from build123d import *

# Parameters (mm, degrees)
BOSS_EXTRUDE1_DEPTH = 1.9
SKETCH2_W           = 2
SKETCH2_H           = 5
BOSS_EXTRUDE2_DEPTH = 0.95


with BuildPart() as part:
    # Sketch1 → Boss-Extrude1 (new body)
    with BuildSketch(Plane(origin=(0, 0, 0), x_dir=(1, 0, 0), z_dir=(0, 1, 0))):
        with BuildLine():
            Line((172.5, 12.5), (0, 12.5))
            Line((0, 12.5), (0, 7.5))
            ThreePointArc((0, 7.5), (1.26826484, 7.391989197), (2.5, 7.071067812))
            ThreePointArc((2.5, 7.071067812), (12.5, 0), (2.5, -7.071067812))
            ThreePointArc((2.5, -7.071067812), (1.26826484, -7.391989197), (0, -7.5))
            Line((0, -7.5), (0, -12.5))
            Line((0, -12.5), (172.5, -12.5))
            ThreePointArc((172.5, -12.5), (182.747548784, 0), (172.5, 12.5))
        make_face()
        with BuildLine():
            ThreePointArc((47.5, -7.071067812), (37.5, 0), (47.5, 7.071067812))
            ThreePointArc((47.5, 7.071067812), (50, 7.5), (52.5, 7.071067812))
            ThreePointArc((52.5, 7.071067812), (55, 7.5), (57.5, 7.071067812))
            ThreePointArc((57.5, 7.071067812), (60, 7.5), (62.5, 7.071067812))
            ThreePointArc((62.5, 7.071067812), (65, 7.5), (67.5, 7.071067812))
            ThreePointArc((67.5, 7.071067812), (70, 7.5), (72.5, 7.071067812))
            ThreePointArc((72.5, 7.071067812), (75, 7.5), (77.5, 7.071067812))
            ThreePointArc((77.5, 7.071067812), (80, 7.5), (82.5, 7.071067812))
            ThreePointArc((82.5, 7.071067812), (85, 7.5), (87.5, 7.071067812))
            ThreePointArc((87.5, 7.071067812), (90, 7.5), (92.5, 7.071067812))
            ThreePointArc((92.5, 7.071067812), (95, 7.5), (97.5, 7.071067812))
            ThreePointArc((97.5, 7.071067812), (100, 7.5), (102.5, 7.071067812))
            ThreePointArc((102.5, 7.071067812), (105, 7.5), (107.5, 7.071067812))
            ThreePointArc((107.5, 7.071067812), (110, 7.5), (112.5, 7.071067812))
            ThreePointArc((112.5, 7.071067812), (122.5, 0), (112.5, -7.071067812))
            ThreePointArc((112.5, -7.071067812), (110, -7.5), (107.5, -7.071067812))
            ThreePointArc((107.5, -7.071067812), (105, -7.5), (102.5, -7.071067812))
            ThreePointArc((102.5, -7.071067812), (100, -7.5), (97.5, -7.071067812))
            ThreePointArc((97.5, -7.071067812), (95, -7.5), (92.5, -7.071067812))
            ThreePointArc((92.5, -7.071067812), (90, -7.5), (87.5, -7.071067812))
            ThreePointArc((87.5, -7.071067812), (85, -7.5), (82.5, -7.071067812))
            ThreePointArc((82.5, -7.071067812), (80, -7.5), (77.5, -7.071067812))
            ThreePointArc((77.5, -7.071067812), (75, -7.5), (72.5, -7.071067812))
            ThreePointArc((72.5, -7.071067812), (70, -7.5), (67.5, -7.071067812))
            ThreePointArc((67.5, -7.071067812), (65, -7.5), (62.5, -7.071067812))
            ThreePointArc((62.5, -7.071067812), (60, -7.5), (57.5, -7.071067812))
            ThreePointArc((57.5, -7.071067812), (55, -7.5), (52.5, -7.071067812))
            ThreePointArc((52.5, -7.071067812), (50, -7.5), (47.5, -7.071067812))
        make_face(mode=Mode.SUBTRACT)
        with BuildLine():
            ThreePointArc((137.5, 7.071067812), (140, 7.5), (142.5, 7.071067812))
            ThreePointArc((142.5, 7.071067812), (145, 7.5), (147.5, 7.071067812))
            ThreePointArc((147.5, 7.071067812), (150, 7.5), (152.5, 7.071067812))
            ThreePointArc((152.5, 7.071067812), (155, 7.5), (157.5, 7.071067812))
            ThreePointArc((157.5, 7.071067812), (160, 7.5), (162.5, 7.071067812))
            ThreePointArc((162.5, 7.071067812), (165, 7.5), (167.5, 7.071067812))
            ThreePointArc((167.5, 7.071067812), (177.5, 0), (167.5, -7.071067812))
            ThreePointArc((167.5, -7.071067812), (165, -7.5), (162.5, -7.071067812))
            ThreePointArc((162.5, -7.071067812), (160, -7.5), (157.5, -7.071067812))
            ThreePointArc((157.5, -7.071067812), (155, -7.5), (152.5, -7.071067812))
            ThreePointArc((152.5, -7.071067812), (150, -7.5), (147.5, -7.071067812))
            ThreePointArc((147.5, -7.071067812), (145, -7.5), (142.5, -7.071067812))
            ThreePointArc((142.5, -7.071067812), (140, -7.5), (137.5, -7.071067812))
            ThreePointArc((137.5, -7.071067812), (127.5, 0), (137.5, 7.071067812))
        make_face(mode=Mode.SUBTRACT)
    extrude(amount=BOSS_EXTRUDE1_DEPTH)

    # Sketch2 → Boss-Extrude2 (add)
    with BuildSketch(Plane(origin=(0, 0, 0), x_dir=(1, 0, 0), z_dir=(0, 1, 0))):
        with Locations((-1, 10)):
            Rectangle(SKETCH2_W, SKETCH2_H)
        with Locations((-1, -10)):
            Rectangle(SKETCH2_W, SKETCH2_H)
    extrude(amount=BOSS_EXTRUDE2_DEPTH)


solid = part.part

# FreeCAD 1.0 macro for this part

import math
import FreeCAD as App
import Part
import Sketcher

V = App.Vector
Q = App.Units.Quantity


def add_polygon(sketch, points):
    """Adds a closed chain of lines whose ends are joined by coincident constraints."""
    first, n = sketch.GeometryCount, len(points)
    for a, b in zip(points, points[1:] + points[:1]):
        sketch.addGeometry(Part.LineSegment(App.Vector(*a, 0), App.Vector(*b, 0)), False)
    for i in range(n):
        sketch.addConstraint(Sketcher.Constraint("Coincident", first + i, 2, first + (i + 1) % n, 1))

doc = App.newDocument("Part")
body = doc.addObject("PartDesign::Body", "Body")

# Sketch on XZ plane
sketch1 = doc.addObject("Sketcher::SketchObject", "Sketch")
body.addObject(sketch1)
sketch1.AttachmentSupport = (doc.XZ_Plane, [""])
sketch1.MapMode = "FlatFace"
sketch1.addGeometry(Part.LineSegment(V(172.5, -12.5, 0), V(0, -12.5, 0)), False)
sketch1.addGeometry(Part.LineSegment(V(0, -12.5, 0), V(0, -7.5, 0)), False)
sketch1.addGeometry(Part.ArcOfCircle(Part.Circle(V(0, 0, 0), V(0, 0, 1), 7.5), math.radians(-90), math.radians(-70.528779)), False)
sketch1.addGeometry(Part.ArcOfCircle(Part.Circle(V(5, 0, 0), V(0, 0, 1), 7.5), math.radians(-109.471221), math.radians(109.471221)), False)
sketch1.addGeometry(Part.ArcOfCircle(Part.Circle(V(0, 0, 0), V(0, 0, 1), 7.5), math.radians(70.528779), math.radians(90)), False)
sketch1.addGeometry(Part.LineSegment(V(0, 7.5, 0), V(0, 12.5, 0)), False)
sketch1.addGeometry(Part.LineSegment(V(0, 12.5, 0), V(172.5, 12.5, 0)), False)
sketch1.addGeometry(Part.ArcOfCircle(Part.Circle(V(170, 0, 0), V(0, 0, 1), 12.747549), math.radians(-78.690068), math.radians(78.690068)), False)
sketch1.addGeometry(Part.ArcOfCircle(Part.Circle(V(50, 0, 0), V(0, 0, 1), 7.5), math.radians(70.528779), math.radians(109.471221)), False)
sketch1.addGeometry(Part.ArcOfCircle(Part.Circle(V(45, 0, 0), V(0, 0, 1), 7.5), math.radians(70.528779), math.radians(289.471221)), False)
sketch1.addGeometry(Part.ArcOfCircle(Part.Circle(V(50, 0, 0), V(0, 0, 1), 7.5), math.radians(-109.471221), math.radians(-70.528779)), False)
sketch1.addGeometry(Part.ArcOfCircle(Part.Circle(V(55, 0, 0), V(0, 0, 1), 7.5), math.radians(-109.471221), math.radians(-70.528779)), False)
sketch1.addGeometry(Part.ArcOfCircle(Part.Circle(V(60, 0, 0), V(0, 0, 1), 7.5), math.radians(-109.471221), math.radians(-70.528779)), False)
sketch1.addGeometry(Part.ArcOfCircle(Part.Circle(V(65, 0, 0), V(0, 0, 1), 7.5), math.radians(-109.471221), math.radians(-70.528779)), False)
sketch1.addGeometry(Part.ArcOfCircle(Part.Circle(V(70, 0, 0), V(0, 0, 1), 7.5), math.radians(-109.471221), math.radians(-70.528779)), False)
sketch1.addGeometry(Part.ArcOfCircle(Part.Circle(V(75, 0, 0), V(0, 0, 1), 7.5), math.radians(-109.471221), math.radians(-70.528779)), False)
sketch1.addGeometry(Part.ArcOfCircle(Part.Circle(V(80, 0, 0), V(0, 0, 1), 7.5), math.radians(-109.471221), math.radians(-70.528779)), False)
sketch1.addGeometry(Part.ArcOfCircle(Part.Circle(V(85, 0, 0), V(0, 0, 1), 7.5), math.radians(-109.471221), math.radians(-70.528779)), False)
sketch1.addGeometry(Part.ArcOfCircle(Part.Circle(V(90, 0, 0), V(0, 0, 1), 7.5), math.radians(-109.471221), math.radians(-70.528779)), False)
sketch1.addGeometry(Part.ArcOfCircle(Part.Circle(V(95, 0, 0), V(0, 0, 1), 7.5), math.radians(-109.471221), math.radians(-70.528779)), False)
sketch1.addGeometry(Part.ArcOfCircle(Part.Circle(V(100, 0, 0), V(0, 0, 1), 7.5), math.radians(-109.471221), math.radians(-70.528779)), False)
sketch1.addGeometry(Part.ArcOfCircle(Part.Circle(V(105, 0, 0), V(0, 0, 1), 7.5), math.radians(-109.471221), math.radians(-70.528779)), False)
sketch1.addGeometry(Part.ArcOfCircle(Part.Circle(V(110, 0, 0), V(0, 0, 1), 7.5), math.radians(-109.471221), math.radians(-70.528779)), False)
sketch1.addGeometry(Part.ArcOfCircle(Part.Circle(V(115, 0, 0), V(0, 0, 1), 7.5), math.radians(-109.471221), math.radians(109.471221)), False)
sketch1.addGeometry(Part.ArcOfCircle(Part.Circle(V(110, 0, 0), V(0, 0, 1), 7.5), math.radians(70.528779), math.radians(109.471221)), False)
sketch1.addGeometry(Part.ArcOfCircle(Part.Circle(V(105, 0, 0), V(0, 0, 1), 7.5), math.radians(70.528779), math.radians(109.471221)), False)
sketch1.addGeometry(Part.ArcOfCircle(Part.Circle(V(100, 0, 0), V(0, 0, 1), 7.5), math.radians(70.528779), math.radians(109.471221)), False)
sketch1.addGeometry(Part.ArcOfCircle(Part.Circle(V(95, 0, 0), V(0, 0, 1), 7.5), math.radians(70.528779), math.radians(109.471221)), False)
sketch1.addGeometry(Part.ArcOfCircle(Part.Circle(V(90, 0, 0), V(0, 0, 1), 7.5), math.radians(70.528779), math.radians(109.471221)), False)
sketch1.addGeometry(Part.ArcOfCircle(Part.Circle(V(85, 0, 0), V(0, 0, 1), 7.5), math.radians(70.528779), math.radians(109.471221)), False)
sketch1.addGeometry(Part.ArcOfCircle(Part.Circle(V(80, 0, 0), V(0, 0, 1), 7.5), math.radians(70.528779), math.radians(109.471221)), False)
sketch1.addGeometry(Part.ArcOfCircle(Part.Circle(V(75, 0, 0), V(0, 0, 1), 7.5), math.radians(70.528779), math.radians(109.471221)), False)
sketch1.addGeometry(Part.ArcOfCircle(Part.Circle(V(70, 0, 0), V(0, 0, 1), 7.5), math.radians(70.528779), math.radians(109.471221)), False)
sketch1.addGeometry(Part.ArcOfCircle(Part.Circle(V(65, 0, 0), V(0, 0, 1), 7.5), math.radians(70.528779), math.radians(109.471221)), False)
sketch1.addGeometry(Part.ArcOfCircle(Part.Circle(V(60, 0, 0), V(0, 0, 1), 7.5), math.radians(70.528779), math.radians(109.471221)), False)
sketch1.addGeometry(Part.ArcOfCircle(Part.Circle(V(55, 0, 0), V(0, 0, 1), 7.5), math.radians(70.528779), math.radians(109.471221)), False)
sketch1.addGeometry(Part.ArcOfCircle(Part.Circle(V(135, 0, 0), V(0, 0, 1), 7.5), math.radians(70.528779), math.radians(289.471221)), False)
sketch1.addGeometry(Part.ArcOfCircle(Part.Circle(V(140, 0, 0), V(0, 0, 1), 7.5), math.radians(-109.471221), math.radians(-70.528779)), False)
sketch1.addGeometry(Part.ArcOfCircle(Part.Circle(V(145, 0, 0), V(0, 0, 1), 7.5), math.radians(-109.471221), math.radians(-70.528779)), False)
sketch1.addGeometry(Part.ArcOfCircle(Part.Circle(V(150, 0, 0), V(0, 0, 1), 7.5), math.radians(-109.471221), math.radians(-70.528779)), False)
sketch1.addGeometry(Part.ArcOfCircle(Part.Circle(V(155, 0, 0), V(0, 0, 1), 7.5), math.radians(-109.471221), math.radians(-70.528779)), False)
sketch1.addGeometry(Part.ArcOfCircle(Part.Circle(V(160, 0, 0), V(0, 0, 1), 7.5), math.radians(-109.471221), math.radians(-70.528779)), False)
sketch1.addGeometry(Part.ArcOfCircle(Part.Circle(V(165, 0, 0), V(0, 0, 1), 7.5), math.radians(-109.471221), math.radians(-70.528779)), False)
sketch1.addGeometry(Part.ArcOfCircle(Part.Circle(V(170, 0, 0), V(0, 0, 1), 7.5), math.radians(-109.471221), math.radians(109.471221)), False)
sketch1.addGeometry(Part.ArcOfCircle(Part.Circle(V(165, 0, 0), V(0, 0, 1), 7.5), math.radians(70.528779), math.radians(109.471221)), False)
sketch1.addGeometry(Part.ArcOfCircle(Part.Circle(V(160, 0, 0), V(0, 0, 1), 7.5), math.radians(70.528779), math.radians(109.471221)), False)
sketch1.addGeometry(Part.ArcOfCircle(Part.Circle(V(155, 0, 0), V(0, 0, 1), 7.5), math.radians(70.528779), math.radians(109.471221)), False)
sketch1.addGeometry(Part.ArcOfCircle(Part.Circle(V(150, 0, 0), V(0, 0, 1), 7.5), math.radians(70.528779), math.radians(109.471221)), False)
sketch1.addGeometry(Part.ArcOfCircle(Part.Circle(V(145, 0, 0), V(0, 0, 1), 7.5), math.radians(70.528779), math.radians(109.471221)), False)
sketch1.addGeometry(Part.ArcOfCircle(Part.Circle(V(140, 0, 0), V(0, 0, 1), 7.5), math.radians(70.528779), math.radians(109.471221)), False)
sketch1.addConstraint(Sketcher.Constraint("Coincident", 0, 2, 1, 1))
sketch1.addConstraint(Sketcher.Constraint("Coincident", 1, 2, 2, 1))
sketch1.addConstraint(Sketcher.Constraint("Coincident", 2, 2, 3, 1))
sketch1.addConstraint(Sketcher.Constraint("Coincident", 3, 2, 4, 1))
sketch1.addConstraint(Sketcher.Constraint("Coincident", 4, 2, 5, 1))
sketch1.addConstraint(Sketcher.Constraint("Coincident", 5, 2, 6, 1))
sketch1.addConstraint(Sketcher.Constraint("Coincident", 6, 2, 7, 2))
sketch1.addConstraint(Sketcher.Constraint("Coincident", 7, 1, 0, 1))
sketch1.addConstraint(Sketcher.Constraint("Coincident", 8, 2, 9, 1))
sketch1.addConstraint(Sketcher.Constraint("Coincident", 9, 2, 10, 1))
sketch1.addConstraint(Sketcher.Constraint("Coincident", 10, 2, 11, 1))
sketch1.addConstraint(Sketcher.Constraint("Coincident", 11, 2, 12, 1))
sketch1.addConstraint(Sketcher.Constraint("Coincident", 12, 2, 13, 1))
sketch1.addConstraint(Sketcher.Constraint("Coincident", 13, 2, 14, 1))
sketch1.addConstraint(Sketcher.Constraint("Coincident", 14, 2, 15, 1))
sketch1.addConstraint(Sketcher.Constraint("Coincident", 15, 2, 16, 1))
sketch1.addConstraint(Sketcher.Constraint("Coincident", 16, 2, 17, 1))
sketch1.addConstraint(Sketcher.Constraint("Coincident", 17, 2, 18, 1))
sketch1.addConstraint(Sketcher.Constraint("Coincident", 18, 2, 19, 1))
sketch1.addConstraint(Sketcher.Constraint("Coincident", 19, 2, 20, 1))
sketch1.addConstraint(Sketcher.Constraint("Coincident", 20, 2, 21, 1))
sketch1.addConstraint(Sketcher.Constraint("Coincident", 21, 2, 22, 1))
sketch1.addConstraint(Sketcher.Constraint("Coincident", 22, 2, 23, 1))
sketch1.addConstraint(Sketcher.Constraint("Coincident", 23, 2, 24, 1))
sketch1.addConstraint(Sketcher.Constraint("Coincident", 24, 2, 25, 1))
sketch1.addConstraint(Sketcher.Constraint("Coincident", 25, 2, 26, 1))
sketch1.addConstraint(Sketcher.Constraint("Coincident", 26, 2, 27, 1))
sketch1.addConstraint(Sketcher.Constraint("Coincident", 27, 2, 28, 1))
sketch1.addConstraint(Sketcher.Constraint("Coincident", 28, 2, 29, 1))
sketch1.addConstraint(Sketcher.Constraint("Coincident", 29, 2, 30, 1))
sketch1.addConstraint(Sketcher.Constraint("Coincident", 30, 2, 31, 1))
sketch1.addConstraint(Sketcher.Constraint("Coincident", 31, 2, 32, 1))
sketch1.addConstraint(Sketcher.Constraint("Coincident", 32, 2, 33, 1))
sketch1.addConstraint(Sketcher.Constraint("Coincident", 33, 2, 34, 1))
sketch1.addConstraint(Sketcher.Constraint("Coincident", 34, 2, 35, 1))
sketch1.addConstraint(Sketcher.Constraint("Coincident", 35, 2, 8, 1))
sketch1.addConstraint(Sketcher.Constraint("Coincident", 36, 2, 37, 1))
sketch1.addConstraint(Sketcher.Constraint("Coincident", 37, 2, 38, 1))
sketch1.addConstraint(Sketcher.Constraint("Coincident", 38, 2, 39, 1))
sketch1.addConstraint(Sketcher.Constraint("Coincident", 39, 2, 40, 1))
sketch1.addConstraint(Sketcher.Constraint("Coincident", 40, 2, 41, 1))
sketch1.addConstraint(Sketcher.Constraint("Coincident", 41, 2, 42, 1))
sketch1.addConstraint(Sketcher.Constraint("Coincident", 42, 2, 43, 1))
sketch1.addConstraint(Sketcher.Constraint("Coincident", 43, 2, 44, 1))
sketch1.addConstraint(Sketcher.Constraint("Coincident", 44, 2, 45, 1))
sketch1.addConstraint(Sketcher.Constraint("Coincident", 45, 2, 46, 1))
sketch1.addConstraint(Sketcher.Constraint("Coincident", 46, 2, 47, 1))
sketch1.addConstraint(Sketcher.Constraint("Coincident", 47, 2, 48, 1))
sketch1.addConstraint(Sketcher.Constraint("Coincident", 48, 2, 49, 1))
sketch1.addConstraint(Sketcher.Constraint("Coincident", 49, 2, 36, 1))
sketch1.addConstraint(Sketcher.Constraint("Horizontal", 0))
sketch1.addConstraint(Sketcher.Constraint("Vertical", 1))
sketch1.addConstraint(Sketcher.Constraint("Vertical", 5))
sketch1.addConstraint(Sketcher.Constraint("Horizontal", 6))
sketch1.addConstraint(Sketcher.Constraint("Coincident", 2, 3, -1, 1))
sketch1.addConstraint(Sketcher.Constraint("Coincident", 4, 3, -1, 1))
sketch1.addConstraint(Sketcher.Constraint("Coincident", 10, 3, 8, 3))
sketch1.addConstraint(Sketcher.Constraint("Coincident", 24, 3, 22, 3))
sketch1.addConstraint(Sketcher.Constraint("Coincident", 25, 3, 21, 3))
sketch1.addConstraint(Sketcher.Constraint("Coincident", 26, 3, 20, 3))
sketch1.addConstraint(Sketcher.Constraint("Coincident", 27, 3, 19, 3))
sketch1.addConstraint(Sketcher.Constraint("Coincident", 28, 3, 18, 3))
sketch1.addConstraint(Sketcher.Constraint("Coincident", 29, 3, 17, 3))
sketch1.addConstraint(Sketcher.Constraint("Coincident", 30, 3, 16, 3))
sketch1.addConstraint(Sketcher.Constraint("Coincident", 31, 3, 15, 3))
sketch1.addConstraint(Sketcher.Constraint("Coincident", 32, 3, 14, 3))
sketch1.addConstraint(Sketcher.Constraint("Coincident", 33, 3, 13, 3))
sketch1.addConstraint(Sketcher.Constraint("Coincident", 34, 3, 12, 3))
sketch1.addConstraint(Sketcher.Constraint("Coincident", 35, 3, 11, 3))
sketch1.addConstraint(Sketcher.Constraint("Coincident", 43, 3, 7, 3))
sketch1.addConstraint(Sketcher.Constraint("Coincident", 44, 3, 42, 3))
sketch1.addConstraint(Sketcher.Constraint("Coincident", 45, 3, 41, 3))
sketch1.addConstraint(Sketcher.Constraint("Coincident", 46, 3, 40, 3))
sketch1.addConstraint(Sketcher.Constraint("Coincident", 47, 3, 39, 3))
sketch1.addConstraint(Sketcher.Constraint("Coincident", 48, 3, 38, 3))
sketch1.addConstraint(Sketcher.Constraint("Coincident", 49, 3, 37, 3))
sketch1.addConstraint(Sketcher.Constraint("Equal", 2, 3))
sketch1.addConstraint(Sketcher.Constraint("Equal", 3, 4))
sketch1.addConstraint(Sketcher.Constraint("Equal", 4, 8))
sketch1.addConstraint(Sketcher.Constraint("Equal", 8, 9))
sketch1.addConstraint(Sketcher.Constraint("Equal", 9, 10))
sketch1.addConstraint(Sketcher.Constraint("Equal", 10, 11))
sketch1.addConstraint(Sketcher.Constraint("Equal", 11, 12))
sketch1.addConstraint(Sketcher.Constraint("Equal", 12, 13))
sketch1.addConstraint(Sketcher.Constraint("Equal", 13, 14))
sketch1.addConstraint(Sketcher.Constraint("Equal", 14, 15))
sketch1.addConstraint(Sketcher.Constraint("Equal", 15, 16))
sketch1.addConstraint(Sketcher.Constraint("Equal", 16, 17))
sketch1.addConstraint(Sketcher.Constraint("Equal", 17, 18))
sketch1.addConstraint(Sketcher.Constraint("Equal", 18, 19))
sketch1.addConstraint(Sketcher.Constraint("Equal", 19, 20))
sketch1.addConstraint(Sketcher.Constraint("Equal", 20, 21))
sketch1.addConstraint(Sketcher.Constraint("Equal", 21, 22))
sketch1.addConstraint(Sketcher.Constraint("Equal", 22, 23))
sketch1.addConstraint(Sketcher.Constraint("Equal", 23, 24))
sketch1.addConstraint(Sketcher.Constraint("Equal", 24, 25))
sketch1.addConstraint(Sketcher.Constraint("Equal", 25, 26))
sketch1.addConstraint(Sketcher.Constraint("Equal", 26, 27))
sketch1.addConstraint(Sketcher.Constraint("Equal", 27, 28))
sketch1.addConstraint(Sketcher.Constraint("Equal", 28, 29))
sketch1.addConstraint(Sketcher.Constraint("Equal", 29, 30))
sketch1.addConstraint(Sketcher.Constraint("Equal", 30, 31))
sketch1.addConstraint(Sketcher.Constraint("Equal", 31, 32))
sketch1.addConstraint(Sketcher.Constraint("Equal", 32, 33))
sketch1.addConstraint(Sketcher.Constraint("Equal", 33, 34))
sketch1.addConstraint(Sketcher.Constraint("Equal", 34, 35))
sketch1.addConstraint(Sketcher.Constraint("Equal", 35, 36))
sketch1.addConstraint(Sketcher.Constraint("Equal", 36, 37))
sketch1.addConstraint(Sketcher.Constraint("Equal", 37, 38))
sketch1.addConstraint(Sketcher.Constraint("Equal", 38, 39))
sketch1.addConstraint(Sketcher.Constraint("Equal", 39, 40))
sketch1.addConstraint(Sketcher.Constraint("Equal", 40, 41))
sketch1.addConstraint(Sketcher.Constraint("Equal", 41, 42))
sketch1.addConstraint(Sketcher.Constraint("Equal", 42, 43))
sketch1.addConstraint(Sketcher.Constraint("Equal", 43, 44))
sketch1.addConstraint(Sketcher.Constraint("Equal", 44, 45))
sketch1.addConstraint(Sketcher.Constraint("Equal", 45, 46))
sketch1.addConstraint(Sketcher.Constraint("Equal", 46, 47))
sketch1.addConstraint(Sketcher.Constraint("Equal", 47, 48))
sketch1.addConstraint(Sketcher.Constraint("Equal", 48, 49))
sketch1.addConstraint(Sketcher.Constraint("Symmetric", 0, 2, 5, 2, -1, 1))
sketch1.addConstraint(Sketcher.Constraint("Symmetric", 8, 2, 9, 2, -1))
sketch1.addConstraint(Sketcher.Constraint("Symmetric", 22, 2, 23, 2, -1))
sketch1.addConstraint(Sketcher.Constraint("Symmetric", 20, 2, 25, 2, -1))
sketch1.addConstraint(Sketcher.Constraint("Symmetric", 18, 2, 27, 2, -1))
sketch1.addConstraint(Sketcher.Constraint("Symmetric", 16, 2, 29, 2, -1))
sketch1.addConstraint(Sketcher.Constraint("Symmetric", 14, 2, 31, 2, -1))
sketch1.addConstraint(Sketcher.Constraint("Symmetric", 12, 2, 33, 2, -1))
sketch1.addConstraint(Sketcher.Constraint("Symmetric", 42, 2, 43, 2, -1))
sketch1.addConstraint(Sketcher.Constraint("Symmetric", 40, 2, 45, 2, -1))
sketch1.addConstraint(Sketcher.Constraint("Symmetric", 38, 2, 47, 2, -1))
sketch1.addConstraint(Sketcher.Constraint("Symmetric", 36, 2, 49, 2, -1))
sketch1.addConstraint(Sketcher.Constraint("PointOnObject", 3, 3, -1))
sketch1.addConstraint(Sketcher.Constraint("PointOnObject", 11, 3, -1))
sketch1.addConstraint(Sketcher.Constraint("PointOnObject", 0, 2, -2))
sketch1.addConstraint(Sketcher.Constraint("Horizontal", 3, 2, 8, 2))
sketch1.addConstraint(Sketcher.Constraint("Horizontal", 9, 2, 10, 2))
sketch1.addConstraint(Sketcher.Constraint("Horizontal", 10, 2, 11, 2))
sketch1.addConstraint(Sketcher.Constraint("Horizontal", 11, 2, 12, 2))
sketch1.addConstraint(Sketcher.Constraint("Horizontal", 12, 2, 13, 2))
sketch1.addConstraint(Sketcher.Constraint("Horizontal", 13, 2, 14, 2))
sketch1.addConstraint(Sketcher.Constraint("Horizontal", 14, 2, 15, 2))
sketch1.addConstraint(Sketcher.Constraint("Horizontal", 15, 2, 16, 2))
sketch1.addConstraint(Sketcher.Constraint("Horizontal", 16, 2, 17, 2))
sketch1.addConstraint(Sketcher.Constraint("Horizontal", 17, 2, 18, 2))
sketch1.addConstraint(Sketcher.Constraint("Horizontal", 18, 2, 19, 2))
sketch1.addConstraint(Sketcher.Constraint("Horizontal", 19, 2, 20, 2))
sketch1.addConstraint(Sketcher.Constraint("Horizontal", 20, 2, 21, 2))
sketch1.addConstraint(Sketcher.Constraint("Horizontal", 21, 2, 22, 2))
sketch1.addConstraint(Sketcher.Constraint("Horizontal", 22, 2, 36, 2))
sketch1.addConstraint(Sketcher.Constraint("Horizontal", 36, 2, 37, 2))
sketch1.addConstraint(Sketcher.Constraint("Horizontal", 37, 2, 38, 2))
sketch1.addConstraint(Sketcher.Constraint("Horizontal", 38, 2, 39, 2))
sketch1.addConstraint(Sketcher.Constraint("Horizontal", 39, 2, 40, 2))
sketch1.addConstraint(Sketcher.Constraint("Horizontal", 40, 2, 41, 2))
sketch1.addConstraint(Sketcher.Constraint("Horizontal", 41, 2, 42, 2))
sketch1.addConstraint(Sketcher.Constraint("Radius", 2, Q("7.5 mm")))
sketch1.addConstraint(Sketcher.Constraint("DistanceY", 1, 1, 1, 2, Q("5 mm")))
sketch1.addConstraint(Sketcher.Constraint("DistanceX", 0, 2, 0, 1, Q("172.5 mm")))
sketch1.addConstraint(Sketcher.Constraint("DistanceX", -1, 1, 3, 3, Q("5 mm")))
sketch1.addConstraint(Sketcher.Constraint("DistanceX", -1, 1, 7, 3, Q("170 mm")))
sketch1.addConstraint(Sketcher.Constraint("DistanceX", -1, 1, 8, 3, Q("50 mm")))
pad1 = doc.addObject("PartDesign::Pad", "Pad")
body.addObject(pad1)
pad1.Profile = sketch1
pad1.Length = 1.9
pad1.Reversed = True

# Sketch on XZ plane
sketch2 = doc.addObject("Sketcher::SketchObject", "Sketch001")
body.addObject(sketch2)
sketch2.AttachmentSupport = (doc.XZ_Plane, [""])
sketch2.MapMode = "FlatFace"
add_polygon(sketch2, [(-2, -12.5), (-2, -7.5), (0, -7.5), (0, -12.5)])  # lines 0-3
add_polygon(sketch2, [(-2, 7.5), (-2, 12.5), (0, 12.5), (0, 7.5)])  # lines 4-7
sketch2.addConstraint(Sketcher.Constraint("Vertical", 0))
sketch2.addConstraint(Sketcher.Constraint("Horizontal", 1))
sketch2.addConstraint(Sketcher.Constraint("Vertical", 2))
sketch2.addConstraint(Sketcher.Constraint("Horizontal", 3))
sketch2.addConstraint(Sketcher.Constraint("Vertical", 4))
sketch2.addConstraint(Sketcher.Constraint("Horizontal", 5))
sketch2.addConstraint(Sketcher.Constraint("Vertical", 6))
sketch2.addConstraint(Sketcher.Constraint("Horizontal", 7))
sketch2.addConstraint(Sketcher.Constraint("Symmetric", 2, 2, 5, 2, -1, 1))
sketch2.addConstraint(Sketcher.Constraint("Symmetric", 1, 2, 6, 2, -1))
sketch2.addConstraint(Sketcher.Constraint("Vertical", 3, 2, 4, 2))
sketch2.addConstraint(Sketcher.Constraint("DistanceX", 1, 1, 1, 2, Q("2 mm")))
sketch2.addConstraint(Sketcher.Constraint("DistanceY", 0, 1, 0, 2, Q("5 mm")))
sketch2.addConstraint(Sketcher.Constraint("DistanceY", 0, 2, 4, 2, Q("20 mm")))
pad2 = doc.addObject("PartDesign::Pad", "Pad001")
body.addObject(pad2)
pad2.Profile = sketch2
pad2.Length = 0.95
pad2.Reversed = True

doc.recompute()
